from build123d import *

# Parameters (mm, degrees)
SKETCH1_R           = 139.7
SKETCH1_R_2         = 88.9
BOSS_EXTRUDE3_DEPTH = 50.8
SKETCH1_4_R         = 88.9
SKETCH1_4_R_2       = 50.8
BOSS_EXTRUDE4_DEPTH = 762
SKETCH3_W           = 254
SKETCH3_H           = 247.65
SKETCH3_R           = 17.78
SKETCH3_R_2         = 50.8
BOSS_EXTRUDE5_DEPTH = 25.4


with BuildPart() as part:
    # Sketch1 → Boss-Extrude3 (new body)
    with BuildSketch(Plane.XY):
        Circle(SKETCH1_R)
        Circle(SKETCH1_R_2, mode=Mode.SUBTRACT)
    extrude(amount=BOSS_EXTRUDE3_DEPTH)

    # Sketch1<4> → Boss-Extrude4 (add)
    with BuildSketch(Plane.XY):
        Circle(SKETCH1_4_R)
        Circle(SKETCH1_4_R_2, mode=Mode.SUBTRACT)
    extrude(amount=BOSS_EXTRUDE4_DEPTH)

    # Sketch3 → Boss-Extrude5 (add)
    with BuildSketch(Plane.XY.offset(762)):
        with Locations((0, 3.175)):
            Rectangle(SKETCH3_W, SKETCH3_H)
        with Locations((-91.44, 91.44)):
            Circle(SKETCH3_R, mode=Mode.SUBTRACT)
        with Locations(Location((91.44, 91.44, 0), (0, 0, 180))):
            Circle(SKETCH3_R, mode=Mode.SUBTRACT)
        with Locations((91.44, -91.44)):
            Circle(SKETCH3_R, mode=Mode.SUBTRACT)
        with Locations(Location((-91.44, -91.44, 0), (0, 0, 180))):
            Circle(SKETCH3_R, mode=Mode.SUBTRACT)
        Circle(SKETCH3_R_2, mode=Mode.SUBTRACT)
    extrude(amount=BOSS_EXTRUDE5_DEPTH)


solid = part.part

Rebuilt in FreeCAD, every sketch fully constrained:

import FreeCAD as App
import Part
import Sketcher

V = App.Vector
Q = App.Units.Quantity


def add_polygon(sketch, points):
    """Adds a closed chain of lines whose ends are joined by coincident constraints."""
    first, n = sketch.GeometryCount, len(points)
    for a, b in zip(points, points[1:] + points[:1]):
        sketch.addGeometry(Part.LineSegment(App.Vector(*a, 0), App.Vector(*b, 0)), False)
    for i in range(n):
        sketch.addConstraint(Sketcher.Constraint("Coincident", first + i, 2, first + (i + 1) % n, 1))

doc = App.newDocument("Part")
body = doc.addObject("PartDesign::Body", "Body")

sketch1 = doc.addObject("Sketcher::SketchObject", "Sketch")
body.addObject(sketch1)
sketch1.AttachmentSupport = (doc.XY_Plane, [""])
sketch1.MapMode = "FlatFace"
sketch1.addGeometry([
    Part.Circle(V(0, 0, 0), V(0, 0, 1), 140),
    Part.Circle(V(0, 0, 0), V(0, 0, 1), 89),
], False)
sketch1.addConstraint([
    Sketcher.Constraint("Coincident", 0, 3, -1, 1),
    Sketcher.Constraint("Coincident", 1, 3, -1, 1),
    Sketcher.Constraint("Diameter", 0, Q("11 in")),
    Sketcher.Constraint("Diameter", 1, Q("7 in")),
])
pad1 = doc.addObject("PartDesign::Pad", "Pad")
body.addObject(pad1)
pad1.Profile = sketch1
pad1.Length = Q("2 in")

sketch2 = doc.addObject("Sketcher::SketchObject", "Sketch001")
body.addObject(sketch2)
sketch2.AttachmentSupport = (doc.XY_Plane, [""])
sketch2.MapMode = "FlatFace"
sketch2.addGeometry([
    Part.Circle(V(0, 0, 0), V(0, 0, 1), 89),
    Part.Circle(V(0, 0, 0), V(0, 0, 1), 51),
], False)
sketch2.addConstraint([
    Sketcher.Constraint("Coincident", 0, 3, -1, 1),
    Sketcher.Constraint("Coincident", 1, 3, -1, 1),
    Sketcher.Constraint("Diameter", 0, Q("7 in")),
    Sketcher.Constraint("Diameter", 1, Q("4 in")),
])
pad2 = doc.addObject("PartDesign::Pad", "Pad001")
body.addObject(pad2)
pad2.Profile = sketch2
pad2.Length = Q("30 in")

sketch3 = doc.addObject("Sketcher::SketchObject", "Sketch002")
body.addObject(sketch3)
sketch3.AttachmentSupport = (doc.XY_Plane, [""])
sketch3.MapMode = "FlatFace"
sketch3.AttachmentOffset = App.Placement(V(0, 0, 30 * 25.4), App.Rotation())
add_polygon(sketch3, [(-127, 127), (-127, -121), (127, -121), (127, 127)])
sketch3.addGeometry(Part.Circle(V(-91, -91, 0), V(0, 0, 1), 18), False)
sketch3.addGeometry(Part.Circle(V(91, -91, 0), V(0, 0, 1), 18), False)
sketch3.addGeometry(Part.Circle(V(-91, 91, 0), V(0, 0, 1), 18), False)
sketch3.addGeometry(Part.Circle(V(0, 0, 0), V(0, 0, 1), 51), False)
sketch3.addGeometry(Part.Circle(V(91, 91, 0), V(0, 0, 1), 18), False)
sketch3.addConstraint([
    Sketcher.Constraint("Vertical", 0),
    Sketcher.Constraint("Horizontal", 1),
    Sketcher.Constraint("Vertical", 2),
    Sketcher.Constraint("Horizontal", 3),
    Sketcher.Constraint("Coincident", 7, 3, -1, 1),
    Sketcher.Constraint("Equal", 4, 5),
    Sketcher.Constraint("Equal", 5, 6),
    Sketcher.Constraint("Equal", 6, 8),
    Sketcher.Constraint("Symmetric", 5, 3, 6, 3, -1, 1),
    Sketcher.Constraint("Symmetric", 4, 3, 8, 3, -1, 1),
    Sketcher.Constraint("Symmetric", 4, 3, 5, 3, -2),
    Sketcher.Constraint("Diameter", 7, Q("4 in")),
    Sketcher.Constraint("Diameter", 4, Q("1.4 in")),
    Sketcher.Constraint("DistanceX", 1, 1, 1, 2, Q("10 in")),
    Sketcher.Constraint("DistanceX", 0, 2, -1, 1, Q("5 in")),
    Sketcher.Constraint("DistanceY", -1, 1, 2, 2, Q("5 in")),
    Sketcher.Constraint("DistanceY", 0, 2, 0, 1, Q("9.75 in")),
    Sketcher.Constraint("DistanceX", 4, 3, -1, 1, Q("3.6 in")),
    Sketcher.Constraint("DistanceY", 4, 3, -1, 1, Q("3.6 in")),
])
pad3 = doc.addObject("PartDesign::Pad", "Pad002")
body.addObject(pad3)
pad3.Profile = sketch3
pad3.Length = Q("1 in")

doc.recompute()
